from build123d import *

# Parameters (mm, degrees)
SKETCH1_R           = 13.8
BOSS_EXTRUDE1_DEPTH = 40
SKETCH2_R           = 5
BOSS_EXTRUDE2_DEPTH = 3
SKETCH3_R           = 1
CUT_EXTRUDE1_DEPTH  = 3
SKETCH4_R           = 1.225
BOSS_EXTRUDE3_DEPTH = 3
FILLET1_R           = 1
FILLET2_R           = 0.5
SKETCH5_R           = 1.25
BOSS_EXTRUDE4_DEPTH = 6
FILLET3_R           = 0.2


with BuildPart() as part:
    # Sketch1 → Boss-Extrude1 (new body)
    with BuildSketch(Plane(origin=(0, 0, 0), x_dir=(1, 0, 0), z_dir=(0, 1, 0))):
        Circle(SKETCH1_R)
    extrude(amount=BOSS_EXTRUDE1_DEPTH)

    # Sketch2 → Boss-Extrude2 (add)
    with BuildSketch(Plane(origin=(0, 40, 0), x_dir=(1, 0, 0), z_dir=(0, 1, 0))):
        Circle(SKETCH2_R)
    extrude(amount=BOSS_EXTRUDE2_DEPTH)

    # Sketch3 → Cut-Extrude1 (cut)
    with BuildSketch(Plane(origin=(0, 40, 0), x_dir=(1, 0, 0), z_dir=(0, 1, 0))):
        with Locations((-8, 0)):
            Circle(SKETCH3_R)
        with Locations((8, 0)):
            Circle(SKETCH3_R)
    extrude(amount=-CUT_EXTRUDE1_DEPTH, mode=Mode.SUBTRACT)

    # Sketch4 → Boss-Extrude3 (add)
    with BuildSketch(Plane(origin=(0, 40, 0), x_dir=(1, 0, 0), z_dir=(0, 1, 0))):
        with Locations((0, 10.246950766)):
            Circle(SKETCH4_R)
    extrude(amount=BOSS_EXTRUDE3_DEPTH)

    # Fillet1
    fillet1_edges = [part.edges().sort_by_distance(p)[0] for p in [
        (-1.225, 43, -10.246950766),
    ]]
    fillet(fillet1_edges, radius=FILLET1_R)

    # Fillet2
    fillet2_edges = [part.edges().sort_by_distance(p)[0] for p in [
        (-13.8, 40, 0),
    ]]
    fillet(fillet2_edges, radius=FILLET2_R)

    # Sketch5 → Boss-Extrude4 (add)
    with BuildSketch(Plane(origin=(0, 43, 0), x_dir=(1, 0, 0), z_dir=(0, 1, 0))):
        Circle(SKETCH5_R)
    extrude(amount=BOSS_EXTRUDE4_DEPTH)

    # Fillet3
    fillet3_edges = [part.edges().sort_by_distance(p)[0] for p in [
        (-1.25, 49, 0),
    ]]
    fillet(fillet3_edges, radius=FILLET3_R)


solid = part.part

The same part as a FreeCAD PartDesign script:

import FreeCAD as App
import Part
import Sketcher
from FreeCAD import Vector
Q = App.Units.Quantity


def edges_at(feature, points):
    """Names of the edges that pass closest to the given points."""
    edges = feature.Shape.Edges
    near = lambda p: min(range(len(edges)), key=lambda i: edges[i].distToShape(Part.Vertex(*p))[0])
    return sorted({f"Edge{near(p) + 1}" for p in points})

doc = App.newDocument("Part")
body = doc.addObject("PartDesign::Body", "Body")

sketch1 = body.newObject("Sketcher::SketchObject", "Sketch")
sketch1.AttachmentSupport = (doc.getObject("XZ_Plane"), [""])
sketch1.MapMode = "FlatFace"
sketch1.addGeometry(Part.Circle(Vector(0, 0, 0), Vector(0, 0, 1), 14), False)
sketch1.addConstraint([
    Sketcher.Constraint("Coincident", 0, 3, -1, 1),
    Sketcher.Constraint("Diameter", 0, Q("27.6 mm")),
])
pad1 = body.newObject("PartDesign::Pad", "Pad")
pad1.Profile = sketch1
pad1.Length = 40
pad1.Reversed = True

sketch2 = body.newObject("Sketcher::SketchObject", "Sketch001")
sketch2.AttachmentSupport = (doc.getObject("XZ_Plane"), [""])
sketch2.MapMode = "FlatFace"
sketch2.AttachmentOffset = App.Placement(Vector(0, 0, -40), App.Rotation())
sketch2.addGeometry(Part.Circle(Vector(0, 0, 0), Vector(0, 0, 1), 5), False)
sketch2.addConstraint([
    Sketcher.Constraint("Coincident", 0, 3, -1, 1),
    Sketcher.Constraint("Diameter", 0, Q("10 mm")),
])
pad2 = body.newObject("PartDesign::Pad", "Pad001")
pad2.Profile = sketch2
pad2.Length = 3
pad2.Reversed = True

sketch3 = body.newObject("Sketcher::SketchObject", "Sketch002")
sketch3.AttachmentSupport = (doc.getObject("XZ_Plane"), [""])
sketch3.MapMode = "FlatFace"
sketch3.AttachmentOffset = App.Placement(Vector(0, 0, -40), App.Rotation())
sketch3.addGeometry([
    Part.Circle(Vector(-8, 0, 0), Vector(0, 0, 1), 1),
    Part.Circle(Vector(8, 0, 0), Vector(0, 0, 1), 1),
], False)
sketch3.addConstraint([
    Sketcher.Constraint("Equal", 0, 1),
    Sketcher.Constraint("Symmetric", 0, 3, 1, 3, -1, 1),
    Sketcher.Constraint("PointOnObject", 0, 3, -1),
    Sketcher.Constraint("Diameter", 0, Q("2 mm")),
    Sketcher.Constraint("DistanceX", 0, 3, -1, 1, Q("8 mm")),
])
pocket1 = body.newObject("PartDesign::Pocket", "Pocket")
pocket1.Profile = sketch3
pocket1.Length = 3
pocket1.Reversed = True

sketch4 = body.newObject("Sketcher::SketchObject", "Sketch003")
sketch4.AttachmentSupport = (doc.getObject("XZ_Plane"), [""])
sketch4.MapMode = "FlatFace"
sketch4.AttachmentOffset = App.Placement(Vector(0, 0, -40), App.Rotation())
sketch4.addGeometry(Part.Circle(Vector(0, -10.2, 0), Vector(0, 0, 1), 1.2), False)
sketch4.addConstraint([
    Sketcher.Constraint("PointOnObject", 0, 3, -2),
    Sketcher.Constraint("Diameter", 0, Q("2.45 mm")),
    Sketcher.Constraint("DistanceY", 0, 3, -1, 1, Q("10.246951 mm")),
])
pad3 = body.newObject("PartDesign::Pad", "Pad002")
pad3.Profile = sketch4
pad3.Length = 3
pad3.Reversed = True
doc.recompute()

fillet = body.newObject("PartDesign::Fillet", "Fillet")
fillet.Base = (pad3, edges_at(pad3, [(-1.225, 43, -10.247)]))
fillet.Radius = 1
doc.recompute()

fillet2 = body.newObject("PartDesign::Fillet", "Fillet001")
fillet2.Base = (fillet, edges_at(fillet, [(-13.8, 40, 0)]))
fillet2.Radius = 0.5

sketch5 = body.newObject("Sketcher::SketchObject", "Sketch004")
sketch5.AttachmentSupport = (doc.getObject("XZ_Plane"), [""])
sketch5.MapMode = "FlatFace"
sketch5.AttachmentOffset = App.Placement(Vector(0, 0, -43), App.Rotation())
sketch5.addGeometry(Part.Circle(Vector(0, 0, 0), Vector(0, 0, 1), 1.2), False)
sketch5.addConstraint([
    Sketcher.Constraint("Coincident", 0, 3, -1, 1),
    Sketcher.Constraint("Diameter", 0, Q("2.5 mm")),
])
pad4 = body.newObject("PartDesign::Pad", "Pad003")
pad4.Profile = sketch5
pad4.Length = 6
pad4.Reversed = True
doc.recompute()

fillet3 = body.newObject("PartDesign::Fillet", "Fillet002")
fillet3.Base = (pad4, edges_at(pad4, [(-1.25, 49, 0)]))
fillet3.Radius = 0.2

doc.recompute()
